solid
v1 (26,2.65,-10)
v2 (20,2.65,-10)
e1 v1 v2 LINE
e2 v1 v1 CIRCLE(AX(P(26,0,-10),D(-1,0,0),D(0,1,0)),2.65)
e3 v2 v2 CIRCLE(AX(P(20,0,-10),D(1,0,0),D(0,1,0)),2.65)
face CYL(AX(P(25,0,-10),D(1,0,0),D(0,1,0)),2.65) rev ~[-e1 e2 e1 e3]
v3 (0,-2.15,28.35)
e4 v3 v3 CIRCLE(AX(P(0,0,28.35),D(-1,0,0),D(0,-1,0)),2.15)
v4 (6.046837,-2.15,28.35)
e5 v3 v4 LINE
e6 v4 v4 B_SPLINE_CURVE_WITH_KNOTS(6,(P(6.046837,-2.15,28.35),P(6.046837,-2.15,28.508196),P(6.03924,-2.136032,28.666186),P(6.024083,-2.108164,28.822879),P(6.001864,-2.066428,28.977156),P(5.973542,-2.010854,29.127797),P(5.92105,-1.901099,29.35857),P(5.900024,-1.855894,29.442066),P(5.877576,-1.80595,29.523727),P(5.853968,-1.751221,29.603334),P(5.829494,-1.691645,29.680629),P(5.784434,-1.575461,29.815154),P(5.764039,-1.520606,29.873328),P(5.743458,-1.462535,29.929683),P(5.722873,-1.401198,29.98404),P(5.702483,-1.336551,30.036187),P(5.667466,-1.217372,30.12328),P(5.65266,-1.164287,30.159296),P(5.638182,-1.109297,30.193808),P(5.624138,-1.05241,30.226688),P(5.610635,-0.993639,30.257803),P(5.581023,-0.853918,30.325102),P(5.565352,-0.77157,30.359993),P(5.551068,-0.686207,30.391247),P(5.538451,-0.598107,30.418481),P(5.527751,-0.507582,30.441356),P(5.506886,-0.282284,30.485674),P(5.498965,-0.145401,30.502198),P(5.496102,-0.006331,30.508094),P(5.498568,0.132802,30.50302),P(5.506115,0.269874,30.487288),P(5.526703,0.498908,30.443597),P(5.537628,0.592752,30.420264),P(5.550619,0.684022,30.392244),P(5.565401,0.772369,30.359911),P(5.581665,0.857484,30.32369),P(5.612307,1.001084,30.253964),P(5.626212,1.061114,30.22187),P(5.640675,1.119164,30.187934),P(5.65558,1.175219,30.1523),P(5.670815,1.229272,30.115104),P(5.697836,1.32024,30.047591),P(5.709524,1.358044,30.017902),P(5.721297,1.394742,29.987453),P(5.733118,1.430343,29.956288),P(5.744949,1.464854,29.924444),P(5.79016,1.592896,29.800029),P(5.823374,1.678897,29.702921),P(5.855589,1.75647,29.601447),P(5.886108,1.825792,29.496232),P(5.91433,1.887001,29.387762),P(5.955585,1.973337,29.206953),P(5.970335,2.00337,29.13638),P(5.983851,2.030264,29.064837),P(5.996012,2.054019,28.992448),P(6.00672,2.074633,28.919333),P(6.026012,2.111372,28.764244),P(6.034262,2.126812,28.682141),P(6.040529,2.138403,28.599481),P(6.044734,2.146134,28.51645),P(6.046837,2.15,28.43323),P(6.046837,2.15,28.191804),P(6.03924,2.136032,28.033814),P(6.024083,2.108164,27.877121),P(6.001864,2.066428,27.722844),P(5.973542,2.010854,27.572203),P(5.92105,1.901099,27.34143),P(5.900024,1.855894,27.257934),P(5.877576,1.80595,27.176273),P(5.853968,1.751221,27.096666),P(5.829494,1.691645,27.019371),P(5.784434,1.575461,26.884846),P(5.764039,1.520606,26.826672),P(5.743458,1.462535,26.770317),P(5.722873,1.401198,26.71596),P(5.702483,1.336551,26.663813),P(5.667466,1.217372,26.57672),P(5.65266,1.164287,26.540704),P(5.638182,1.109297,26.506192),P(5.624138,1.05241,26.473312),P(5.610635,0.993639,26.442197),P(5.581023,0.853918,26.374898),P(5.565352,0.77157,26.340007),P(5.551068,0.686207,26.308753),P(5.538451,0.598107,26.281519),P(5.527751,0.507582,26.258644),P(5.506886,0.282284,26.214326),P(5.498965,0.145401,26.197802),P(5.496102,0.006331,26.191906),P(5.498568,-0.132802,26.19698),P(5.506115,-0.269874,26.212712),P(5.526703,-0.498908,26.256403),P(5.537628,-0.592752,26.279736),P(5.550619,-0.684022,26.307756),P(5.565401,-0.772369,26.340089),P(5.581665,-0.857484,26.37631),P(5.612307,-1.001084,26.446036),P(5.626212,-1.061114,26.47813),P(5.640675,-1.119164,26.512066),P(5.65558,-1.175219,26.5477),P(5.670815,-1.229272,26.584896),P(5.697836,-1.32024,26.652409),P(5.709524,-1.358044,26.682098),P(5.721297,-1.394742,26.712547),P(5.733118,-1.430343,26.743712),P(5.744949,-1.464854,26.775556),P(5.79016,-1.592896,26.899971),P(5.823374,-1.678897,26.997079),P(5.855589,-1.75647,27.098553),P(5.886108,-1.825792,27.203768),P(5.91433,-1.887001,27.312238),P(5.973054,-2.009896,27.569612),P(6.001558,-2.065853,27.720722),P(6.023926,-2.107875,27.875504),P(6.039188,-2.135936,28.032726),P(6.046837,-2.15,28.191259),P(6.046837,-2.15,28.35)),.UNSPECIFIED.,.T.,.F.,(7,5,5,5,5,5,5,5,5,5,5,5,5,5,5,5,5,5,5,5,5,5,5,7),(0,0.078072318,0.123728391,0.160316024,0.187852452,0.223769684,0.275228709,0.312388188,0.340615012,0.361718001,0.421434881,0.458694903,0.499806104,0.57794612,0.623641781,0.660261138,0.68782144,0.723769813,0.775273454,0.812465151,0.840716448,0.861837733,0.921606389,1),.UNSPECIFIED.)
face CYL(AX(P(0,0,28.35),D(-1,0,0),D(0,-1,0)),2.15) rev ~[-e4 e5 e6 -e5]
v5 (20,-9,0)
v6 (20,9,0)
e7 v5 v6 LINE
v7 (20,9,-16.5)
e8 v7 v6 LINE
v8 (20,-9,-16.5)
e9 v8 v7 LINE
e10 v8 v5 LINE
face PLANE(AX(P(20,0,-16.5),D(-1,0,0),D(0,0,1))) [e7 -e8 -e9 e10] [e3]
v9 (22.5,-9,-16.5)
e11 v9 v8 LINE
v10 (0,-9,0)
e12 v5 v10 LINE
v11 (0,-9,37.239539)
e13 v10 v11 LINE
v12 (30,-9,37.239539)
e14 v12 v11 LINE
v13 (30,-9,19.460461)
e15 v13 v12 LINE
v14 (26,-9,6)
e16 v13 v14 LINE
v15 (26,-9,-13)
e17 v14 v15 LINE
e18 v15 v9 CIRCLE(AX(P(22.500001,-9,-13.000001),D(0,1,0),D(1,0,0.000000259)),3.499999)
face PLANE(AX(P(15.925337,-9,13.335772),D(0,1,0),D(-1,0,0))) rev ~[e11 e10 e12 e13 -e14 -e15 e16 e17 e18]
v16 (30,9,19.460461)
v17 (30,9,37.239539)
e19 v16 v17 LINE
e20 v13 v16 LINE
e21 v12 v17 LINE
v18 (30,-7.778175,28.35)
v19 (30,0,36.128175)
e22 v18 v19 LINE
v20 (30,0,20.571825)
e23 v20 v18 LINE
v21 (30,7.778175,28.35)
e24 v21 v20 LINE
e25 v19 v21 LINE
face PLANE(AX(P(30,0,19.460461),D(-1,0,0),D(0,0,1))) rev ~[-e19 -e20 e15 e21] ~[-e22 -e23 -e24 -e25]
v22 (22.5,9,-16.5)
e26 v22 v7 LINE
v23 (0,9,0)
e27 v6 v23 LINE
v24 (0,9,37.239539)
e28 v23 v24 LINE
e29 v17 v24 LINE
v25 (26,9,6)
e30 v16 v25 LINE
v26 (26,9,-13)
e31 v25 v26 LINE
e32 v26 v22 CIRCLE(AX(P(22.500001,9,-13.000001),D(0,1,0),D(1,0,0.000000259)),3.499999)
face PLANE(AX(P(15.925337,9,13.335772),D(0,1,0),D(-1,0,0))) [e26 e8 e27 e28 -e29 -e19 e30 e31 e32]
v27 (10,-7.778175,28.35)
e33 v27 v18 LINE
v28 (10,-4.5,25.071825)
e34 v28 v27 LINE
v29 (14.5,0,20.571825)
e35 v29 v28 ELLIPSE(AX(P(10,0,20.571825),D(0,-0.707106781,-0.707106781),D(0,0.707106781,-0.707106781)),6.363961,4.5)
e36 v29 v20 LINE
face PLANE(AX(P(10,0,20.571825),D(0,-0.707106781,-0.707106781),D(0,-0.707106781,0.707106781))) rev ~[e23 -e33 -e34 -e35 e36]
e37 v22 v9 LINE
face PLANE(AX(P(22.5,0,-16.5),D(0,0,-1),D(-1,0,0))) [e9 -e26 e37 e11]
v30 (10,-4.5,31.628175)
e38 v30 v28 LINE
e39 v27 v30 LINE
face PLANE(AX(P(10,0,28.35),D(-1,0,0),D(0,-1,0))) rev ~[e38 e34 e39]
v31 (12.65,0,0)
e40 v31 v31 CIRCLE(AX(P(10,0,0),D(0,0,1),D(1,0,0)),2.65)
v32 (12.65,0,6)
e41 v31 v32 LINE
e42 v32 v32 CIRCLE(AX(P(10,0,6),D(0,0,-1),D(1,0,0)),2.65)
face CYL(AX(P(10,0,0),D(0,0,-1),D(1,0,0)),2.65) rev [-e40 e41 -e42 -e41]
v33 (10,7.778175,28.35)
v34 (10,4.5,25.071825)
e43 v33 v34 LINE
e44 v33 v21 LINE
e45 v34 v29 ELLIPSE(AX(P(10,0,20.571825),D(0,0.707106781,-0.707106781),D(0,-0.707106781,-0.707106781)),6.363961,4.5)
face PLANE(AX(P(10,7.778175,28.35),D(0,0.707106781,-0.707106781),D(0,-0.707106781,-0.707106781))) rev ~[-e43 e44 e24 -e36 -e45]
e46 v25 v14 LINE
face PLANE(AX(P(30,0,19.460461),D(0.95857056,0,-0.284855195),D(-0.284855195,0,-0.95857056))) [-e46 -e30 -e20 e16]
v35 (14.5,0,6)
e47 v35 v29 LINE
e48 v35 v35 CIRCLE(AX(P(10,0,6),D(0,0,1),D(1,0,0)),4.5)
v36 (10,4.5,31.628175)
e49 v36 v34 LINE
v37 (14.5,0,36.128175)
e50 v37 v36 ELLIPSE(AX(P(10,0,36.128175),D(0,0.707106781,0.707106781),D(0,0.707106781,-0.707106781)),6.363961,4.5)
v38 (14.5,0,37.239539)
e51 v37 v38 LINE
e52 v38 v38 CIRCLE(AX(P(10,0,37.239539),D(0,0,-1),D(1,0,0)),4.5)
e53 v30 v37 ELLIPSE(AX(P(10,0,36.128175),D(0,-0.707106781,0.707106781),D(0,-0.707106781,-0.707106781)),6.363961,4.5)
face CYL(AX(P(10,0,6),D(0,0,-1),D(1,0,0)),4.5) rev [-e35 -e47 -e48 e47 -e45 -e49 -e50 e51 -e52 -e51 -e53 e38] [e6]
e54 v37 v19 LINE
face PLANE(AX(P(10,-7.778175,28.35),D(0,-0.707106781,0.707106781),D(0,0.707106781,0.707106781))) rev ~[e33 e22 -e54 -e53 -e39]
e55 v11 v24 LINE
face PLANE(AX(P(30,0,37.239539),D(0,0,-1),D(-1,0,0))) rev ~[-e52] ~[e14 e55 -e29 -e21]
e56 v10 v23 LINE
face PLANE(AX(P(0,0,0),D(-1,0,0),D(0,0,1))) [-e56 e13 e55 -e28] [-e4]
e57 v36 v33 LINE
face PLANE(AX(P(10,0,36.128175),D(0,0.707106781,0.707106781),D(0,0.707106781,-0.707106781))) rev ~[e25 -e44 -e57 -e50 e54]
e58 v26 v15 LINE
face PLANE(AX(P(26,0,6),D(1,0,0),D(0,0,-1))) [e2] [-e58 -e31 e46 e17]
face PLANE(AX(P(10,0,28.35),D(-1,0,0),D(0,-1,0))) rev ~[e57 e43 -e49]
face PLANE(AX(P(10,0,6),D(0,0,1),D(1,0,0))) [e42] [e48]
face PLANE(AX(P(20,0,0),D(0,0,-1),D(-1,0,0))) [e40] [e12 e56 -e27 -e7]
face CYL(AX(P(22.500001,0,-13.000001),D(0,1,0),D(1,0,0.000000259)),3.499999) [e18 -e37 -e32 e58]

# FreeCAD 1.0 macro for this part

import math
import FreeCAD as App
import Part
import Sketcher

V = App.Vector

doc = App.newDocument("Part")
body = doc.addObject("PartDesign::Body", "Body")

sketch1 = body.newObject("Sketcher::SketchObject", "Sketch")
sketch1.AttachmentSupport = (doc.getObject("XZ_Plane"), [""])
sketch1.MapMode = "FlatFace"
sketch1.addGeometry([
    Part.LineSegment(V(22.5, -16.5, 0), V(20, -16.5, 0)),
    Part.LineSegment(V(20, -16.5, 0), V(20, 0, 0)),
    Part.LineSegment(V(20, 0, 0), V(0, 0, 0)),
    Part.LineSegment(V(0, 0, 0), V(0, 37.239539, 0)),
    Part.LineSegment(V(0, 37.239539, 0), V(30, 37.239539, 0)),
    Part.LineSegment(V(30, 37.239539, 0), V(30, 19.460461, 0)),
    Part.LineSegment(V(30, 19.460461, 0), V(26, 6, 0)),
    Part.LineSegment(V(26, 6, 0), V(26, -13, 0)),
    Part.ArcOfCircle(Part.Circle(V(22.500001, -13.000001, 0), V(0, 0, 1), 3.499999), math.radians(-90.000015), math.radians(0.000015)),
], False)
sketch1.addConstraint([
    Sketcher.Constraint("Coincident", 0, 2, 1, 1),
    Sketcher.Constraint("Coincident", 1, 2, 2, 1),
    Sketcher.Constraint("Coincident", 2, 2, 3, 1),
    Sketcher.Constraint("Coincident", 3, 2, 4, 1),
    Sketcher.Constraint("Coincident", 4, 2, 5, 1),
    Sketcher.Constraint("Coincident", 5, 2, 6, 1),
    Sketcher.Constraint("Coincident", 6, 2, 7, 1),
    Sketcher.Constraint("Tangent", 7, 2, 8, 2),
    Sketcher.Constraint("Tangent", 8, 1, 0, 1),
    Sketcher.Constraint("Horizontal", 0),
    Sketcher.Constraint("Vertical", 1),
    Sketcher.Constraint("Horizontal", 2),
    Sketcher.Constraint("Vertical", 3),
    Sketcher.Constraint("Horizontal", 4),
    Sketcher.Constraint("Vertical", 5),
    Sketcher.Constraint("Vertical", 7),
    Sketcher.Constraint("Coincident", 2, 2, -1, 1),
    Sketcher.Constraint("Radius", 8, 3.499999),
    Sketcher.Constraint("DistanceX", 2, 2, 2, 1, 20.0),
    Sketcher.Constraint("DistanceX", 4, 1, 4, 2, 30.0),
    Sketcher.Constraint("DistanceY", 7, 2, 7, 1, 19.0),
    Sketcher.Constraint("DistanceX", 0, 2, 0, 1, 2.5),
    Sketcher.Constraint("DistanceY", 1, 1, 1, 2, 16.5),
    Sketcher.Constraint("DistanceY", 3, 1, 3, 2, 37.239539),
    Sketcher.Constraint("DistanceY", 5, 2, 5, 1, 17.779078),
])
pad1 = body.newObject("PartDesign::Pad", "Pad")
pad1.Profile = sketch1
pad1.Length = 18
pad1.Midplane = True

sketch2 = body.newObject("Sketcher::SketchObject", "Sketch001")
sketch2.AttachmentSupport = (doc.getObject("XY_Plane"), [""])
sketch2.MapMode = "FlatFace"
sketch2.addGeometry(Part.Circle(V(10, 0, 0), V(0, 0, 1), 2.65), False)
sketch2.addConstraint([
    Sketcher.Constraint("PointOnObject", 0, 3, -1),
    Sketcher.Constraint("Diameter", 0, 5.3),
    Sketcher.Constraint("DistanceX", -1, 1, 0, 3, 10.0),
])
pocket1 = body.newObject("PartDesign::Pocket", "Pocket")
pocket1.Profile = sketch2
pocket1.Type = "ThroughAll"
pocket1.Midplane = True

sketch3 = body.newObject("Sketcher::SketchObject", "Sketch002")
sketch3.AttachmentSupport = (doc.getObject("YZ_Plane"), [""])
sketch3.MapMode = "FlatFace"
sketch3.AttachmentOffset = App.Placement(V(0, 0, 25), App.Rotation())
sketch3.addGeometry(Part.Circle(V(0, -10, 0), V(0, 0, 1), 2.65), False)
sketch3.addConstraint([
    Sketcher.Constraint("PointOnObject", 0, 3, -2),
    Sketcher.Constraint("Diameter", 0, 5.3),
    Sketcher.Constraint("DistanceY", 0, 3, -1, 1, 10.0),
])
pocket2 = body.newObject("PartDesign::Pocket", "Pocket001")
pocket2.Profile = sketch3
pocket2.Type = "ThroughAll"
pocket2.Midplane = True

sketch4 = body.newObject("Sketcher::SketchObject", "Sketch003")
sketch4.AttachmentSupport = (doc.getObject("XY_Plane"), [""])
sketch4.MapMode = "FlatFace"
sketch4.AttachmentOffset = App.Placement(V(0, 0, 6), App.Rotation())
sketch4.addGeometry(Part.Circle(V(10, 0, 0), V(0, 0, 1), 4.5), False)
sketch4.addConstraint([
    Sketcher.Constraint("PointOnObject", 0, 3, -1),
    Sketcher.Constraint("Diameter", 0, 9.0),
    Sketcher.Constraint("DistanceX", -1, 1, 0, 3, 10.0),
])
pocket3 = body.newObject("PartDesign::Pocket", "Pocket002")
pocket3.Profile = sketch4
pocket3.Type = "ThroughAll"
pocket3.Reversed = True

sketch5 = body.newObject("Sketcher::SketchObject", "Sketch004")
sketch5.AttachmentSupport = (doc.getObject("YZ_Plane"), [""])
sketch5.MapMode = "FlatFace"
sketch5.addGeometry(Part.Circle(V(0, 28.35, 0), V(0, 0, 1), 2.15), False)
sketch5.addConstraint([
    Sketcher.Constraint("PointOnObject", 0, 3, -2),
    Sketcher.Constraint("Diameter", 0, 4.3),
    Sketcher.Constraint("DistanceY", -1, 1, 0, 3, 28.35),
])
pocket4 = body.newObject("PartDesign::Pocket", "Pocket003")
pocket4.Profile = sketch5
pocket4.Type = "ThroughAll"
pocket4.Reversed = True

sketch6 = body.newObject("Sketcher::SketchObject", "Sketch005")
sketch6.AttachmentSupport = (doc.getObject("YZ_Plane"), [""])
sketch6.MapMode = "FlatFace"
sketch6.AttachmentOffset = App.Placement(V(0, 0, 10), App.Rotation())
sketch6.addGeometry([
    Part.LineSegment(V(0, 36.128175, 0), V(-7.778175, 28.35, 0)),
    Part.LineSegment(V(-7.778175, 28.35, 0), V(0, 20.571825, 0)),
    Part.LineSegment(V(0, 20.571825, 0), V(7.778175, 28.35, 0)),
    Part.LineSegment(V(7.778175, 28.35, 0), V(0, 36.128175, 0)),
], False)
sketch6.addConstraint([
    Sketcher.Constraint("Coincident", 0, 2, 1, 1),
    Sketcher.Constraint("Coincident", 1, 2, 2, 1),
    Sketcher.Constraint("Coincident", 2, 2, 3, 1),
    Sketcher.Constraint("Coincident", 3, 2, 0, 1),
    Sketcher.Constraint("Symmetric", 0, 2, 2, 2, -2),
    Sketcher.Constraint("PointOnObject", 1, 2, -2),
    Sketcher.Constraint("PointOnObject", 3, 2, -2),
    Sketcher.Constraint("Perpendicular", 0, 1),
    Sketcher.Constraint("Perpendicular", 1, 2),
    Sketcher.Constraint("Distance", 0, 11.000001),
    Sketcher.Constraint("DistanceY", -1, 1, 0, 2, 28.35),
])
pocket5 = body.newObject("PartDesign::Pocket", "Pocket004")
pocket5.Profile = sketch6
pocket5.Type = "ThroughAll"
pocket5.Reversed = True

doc.recompute()
